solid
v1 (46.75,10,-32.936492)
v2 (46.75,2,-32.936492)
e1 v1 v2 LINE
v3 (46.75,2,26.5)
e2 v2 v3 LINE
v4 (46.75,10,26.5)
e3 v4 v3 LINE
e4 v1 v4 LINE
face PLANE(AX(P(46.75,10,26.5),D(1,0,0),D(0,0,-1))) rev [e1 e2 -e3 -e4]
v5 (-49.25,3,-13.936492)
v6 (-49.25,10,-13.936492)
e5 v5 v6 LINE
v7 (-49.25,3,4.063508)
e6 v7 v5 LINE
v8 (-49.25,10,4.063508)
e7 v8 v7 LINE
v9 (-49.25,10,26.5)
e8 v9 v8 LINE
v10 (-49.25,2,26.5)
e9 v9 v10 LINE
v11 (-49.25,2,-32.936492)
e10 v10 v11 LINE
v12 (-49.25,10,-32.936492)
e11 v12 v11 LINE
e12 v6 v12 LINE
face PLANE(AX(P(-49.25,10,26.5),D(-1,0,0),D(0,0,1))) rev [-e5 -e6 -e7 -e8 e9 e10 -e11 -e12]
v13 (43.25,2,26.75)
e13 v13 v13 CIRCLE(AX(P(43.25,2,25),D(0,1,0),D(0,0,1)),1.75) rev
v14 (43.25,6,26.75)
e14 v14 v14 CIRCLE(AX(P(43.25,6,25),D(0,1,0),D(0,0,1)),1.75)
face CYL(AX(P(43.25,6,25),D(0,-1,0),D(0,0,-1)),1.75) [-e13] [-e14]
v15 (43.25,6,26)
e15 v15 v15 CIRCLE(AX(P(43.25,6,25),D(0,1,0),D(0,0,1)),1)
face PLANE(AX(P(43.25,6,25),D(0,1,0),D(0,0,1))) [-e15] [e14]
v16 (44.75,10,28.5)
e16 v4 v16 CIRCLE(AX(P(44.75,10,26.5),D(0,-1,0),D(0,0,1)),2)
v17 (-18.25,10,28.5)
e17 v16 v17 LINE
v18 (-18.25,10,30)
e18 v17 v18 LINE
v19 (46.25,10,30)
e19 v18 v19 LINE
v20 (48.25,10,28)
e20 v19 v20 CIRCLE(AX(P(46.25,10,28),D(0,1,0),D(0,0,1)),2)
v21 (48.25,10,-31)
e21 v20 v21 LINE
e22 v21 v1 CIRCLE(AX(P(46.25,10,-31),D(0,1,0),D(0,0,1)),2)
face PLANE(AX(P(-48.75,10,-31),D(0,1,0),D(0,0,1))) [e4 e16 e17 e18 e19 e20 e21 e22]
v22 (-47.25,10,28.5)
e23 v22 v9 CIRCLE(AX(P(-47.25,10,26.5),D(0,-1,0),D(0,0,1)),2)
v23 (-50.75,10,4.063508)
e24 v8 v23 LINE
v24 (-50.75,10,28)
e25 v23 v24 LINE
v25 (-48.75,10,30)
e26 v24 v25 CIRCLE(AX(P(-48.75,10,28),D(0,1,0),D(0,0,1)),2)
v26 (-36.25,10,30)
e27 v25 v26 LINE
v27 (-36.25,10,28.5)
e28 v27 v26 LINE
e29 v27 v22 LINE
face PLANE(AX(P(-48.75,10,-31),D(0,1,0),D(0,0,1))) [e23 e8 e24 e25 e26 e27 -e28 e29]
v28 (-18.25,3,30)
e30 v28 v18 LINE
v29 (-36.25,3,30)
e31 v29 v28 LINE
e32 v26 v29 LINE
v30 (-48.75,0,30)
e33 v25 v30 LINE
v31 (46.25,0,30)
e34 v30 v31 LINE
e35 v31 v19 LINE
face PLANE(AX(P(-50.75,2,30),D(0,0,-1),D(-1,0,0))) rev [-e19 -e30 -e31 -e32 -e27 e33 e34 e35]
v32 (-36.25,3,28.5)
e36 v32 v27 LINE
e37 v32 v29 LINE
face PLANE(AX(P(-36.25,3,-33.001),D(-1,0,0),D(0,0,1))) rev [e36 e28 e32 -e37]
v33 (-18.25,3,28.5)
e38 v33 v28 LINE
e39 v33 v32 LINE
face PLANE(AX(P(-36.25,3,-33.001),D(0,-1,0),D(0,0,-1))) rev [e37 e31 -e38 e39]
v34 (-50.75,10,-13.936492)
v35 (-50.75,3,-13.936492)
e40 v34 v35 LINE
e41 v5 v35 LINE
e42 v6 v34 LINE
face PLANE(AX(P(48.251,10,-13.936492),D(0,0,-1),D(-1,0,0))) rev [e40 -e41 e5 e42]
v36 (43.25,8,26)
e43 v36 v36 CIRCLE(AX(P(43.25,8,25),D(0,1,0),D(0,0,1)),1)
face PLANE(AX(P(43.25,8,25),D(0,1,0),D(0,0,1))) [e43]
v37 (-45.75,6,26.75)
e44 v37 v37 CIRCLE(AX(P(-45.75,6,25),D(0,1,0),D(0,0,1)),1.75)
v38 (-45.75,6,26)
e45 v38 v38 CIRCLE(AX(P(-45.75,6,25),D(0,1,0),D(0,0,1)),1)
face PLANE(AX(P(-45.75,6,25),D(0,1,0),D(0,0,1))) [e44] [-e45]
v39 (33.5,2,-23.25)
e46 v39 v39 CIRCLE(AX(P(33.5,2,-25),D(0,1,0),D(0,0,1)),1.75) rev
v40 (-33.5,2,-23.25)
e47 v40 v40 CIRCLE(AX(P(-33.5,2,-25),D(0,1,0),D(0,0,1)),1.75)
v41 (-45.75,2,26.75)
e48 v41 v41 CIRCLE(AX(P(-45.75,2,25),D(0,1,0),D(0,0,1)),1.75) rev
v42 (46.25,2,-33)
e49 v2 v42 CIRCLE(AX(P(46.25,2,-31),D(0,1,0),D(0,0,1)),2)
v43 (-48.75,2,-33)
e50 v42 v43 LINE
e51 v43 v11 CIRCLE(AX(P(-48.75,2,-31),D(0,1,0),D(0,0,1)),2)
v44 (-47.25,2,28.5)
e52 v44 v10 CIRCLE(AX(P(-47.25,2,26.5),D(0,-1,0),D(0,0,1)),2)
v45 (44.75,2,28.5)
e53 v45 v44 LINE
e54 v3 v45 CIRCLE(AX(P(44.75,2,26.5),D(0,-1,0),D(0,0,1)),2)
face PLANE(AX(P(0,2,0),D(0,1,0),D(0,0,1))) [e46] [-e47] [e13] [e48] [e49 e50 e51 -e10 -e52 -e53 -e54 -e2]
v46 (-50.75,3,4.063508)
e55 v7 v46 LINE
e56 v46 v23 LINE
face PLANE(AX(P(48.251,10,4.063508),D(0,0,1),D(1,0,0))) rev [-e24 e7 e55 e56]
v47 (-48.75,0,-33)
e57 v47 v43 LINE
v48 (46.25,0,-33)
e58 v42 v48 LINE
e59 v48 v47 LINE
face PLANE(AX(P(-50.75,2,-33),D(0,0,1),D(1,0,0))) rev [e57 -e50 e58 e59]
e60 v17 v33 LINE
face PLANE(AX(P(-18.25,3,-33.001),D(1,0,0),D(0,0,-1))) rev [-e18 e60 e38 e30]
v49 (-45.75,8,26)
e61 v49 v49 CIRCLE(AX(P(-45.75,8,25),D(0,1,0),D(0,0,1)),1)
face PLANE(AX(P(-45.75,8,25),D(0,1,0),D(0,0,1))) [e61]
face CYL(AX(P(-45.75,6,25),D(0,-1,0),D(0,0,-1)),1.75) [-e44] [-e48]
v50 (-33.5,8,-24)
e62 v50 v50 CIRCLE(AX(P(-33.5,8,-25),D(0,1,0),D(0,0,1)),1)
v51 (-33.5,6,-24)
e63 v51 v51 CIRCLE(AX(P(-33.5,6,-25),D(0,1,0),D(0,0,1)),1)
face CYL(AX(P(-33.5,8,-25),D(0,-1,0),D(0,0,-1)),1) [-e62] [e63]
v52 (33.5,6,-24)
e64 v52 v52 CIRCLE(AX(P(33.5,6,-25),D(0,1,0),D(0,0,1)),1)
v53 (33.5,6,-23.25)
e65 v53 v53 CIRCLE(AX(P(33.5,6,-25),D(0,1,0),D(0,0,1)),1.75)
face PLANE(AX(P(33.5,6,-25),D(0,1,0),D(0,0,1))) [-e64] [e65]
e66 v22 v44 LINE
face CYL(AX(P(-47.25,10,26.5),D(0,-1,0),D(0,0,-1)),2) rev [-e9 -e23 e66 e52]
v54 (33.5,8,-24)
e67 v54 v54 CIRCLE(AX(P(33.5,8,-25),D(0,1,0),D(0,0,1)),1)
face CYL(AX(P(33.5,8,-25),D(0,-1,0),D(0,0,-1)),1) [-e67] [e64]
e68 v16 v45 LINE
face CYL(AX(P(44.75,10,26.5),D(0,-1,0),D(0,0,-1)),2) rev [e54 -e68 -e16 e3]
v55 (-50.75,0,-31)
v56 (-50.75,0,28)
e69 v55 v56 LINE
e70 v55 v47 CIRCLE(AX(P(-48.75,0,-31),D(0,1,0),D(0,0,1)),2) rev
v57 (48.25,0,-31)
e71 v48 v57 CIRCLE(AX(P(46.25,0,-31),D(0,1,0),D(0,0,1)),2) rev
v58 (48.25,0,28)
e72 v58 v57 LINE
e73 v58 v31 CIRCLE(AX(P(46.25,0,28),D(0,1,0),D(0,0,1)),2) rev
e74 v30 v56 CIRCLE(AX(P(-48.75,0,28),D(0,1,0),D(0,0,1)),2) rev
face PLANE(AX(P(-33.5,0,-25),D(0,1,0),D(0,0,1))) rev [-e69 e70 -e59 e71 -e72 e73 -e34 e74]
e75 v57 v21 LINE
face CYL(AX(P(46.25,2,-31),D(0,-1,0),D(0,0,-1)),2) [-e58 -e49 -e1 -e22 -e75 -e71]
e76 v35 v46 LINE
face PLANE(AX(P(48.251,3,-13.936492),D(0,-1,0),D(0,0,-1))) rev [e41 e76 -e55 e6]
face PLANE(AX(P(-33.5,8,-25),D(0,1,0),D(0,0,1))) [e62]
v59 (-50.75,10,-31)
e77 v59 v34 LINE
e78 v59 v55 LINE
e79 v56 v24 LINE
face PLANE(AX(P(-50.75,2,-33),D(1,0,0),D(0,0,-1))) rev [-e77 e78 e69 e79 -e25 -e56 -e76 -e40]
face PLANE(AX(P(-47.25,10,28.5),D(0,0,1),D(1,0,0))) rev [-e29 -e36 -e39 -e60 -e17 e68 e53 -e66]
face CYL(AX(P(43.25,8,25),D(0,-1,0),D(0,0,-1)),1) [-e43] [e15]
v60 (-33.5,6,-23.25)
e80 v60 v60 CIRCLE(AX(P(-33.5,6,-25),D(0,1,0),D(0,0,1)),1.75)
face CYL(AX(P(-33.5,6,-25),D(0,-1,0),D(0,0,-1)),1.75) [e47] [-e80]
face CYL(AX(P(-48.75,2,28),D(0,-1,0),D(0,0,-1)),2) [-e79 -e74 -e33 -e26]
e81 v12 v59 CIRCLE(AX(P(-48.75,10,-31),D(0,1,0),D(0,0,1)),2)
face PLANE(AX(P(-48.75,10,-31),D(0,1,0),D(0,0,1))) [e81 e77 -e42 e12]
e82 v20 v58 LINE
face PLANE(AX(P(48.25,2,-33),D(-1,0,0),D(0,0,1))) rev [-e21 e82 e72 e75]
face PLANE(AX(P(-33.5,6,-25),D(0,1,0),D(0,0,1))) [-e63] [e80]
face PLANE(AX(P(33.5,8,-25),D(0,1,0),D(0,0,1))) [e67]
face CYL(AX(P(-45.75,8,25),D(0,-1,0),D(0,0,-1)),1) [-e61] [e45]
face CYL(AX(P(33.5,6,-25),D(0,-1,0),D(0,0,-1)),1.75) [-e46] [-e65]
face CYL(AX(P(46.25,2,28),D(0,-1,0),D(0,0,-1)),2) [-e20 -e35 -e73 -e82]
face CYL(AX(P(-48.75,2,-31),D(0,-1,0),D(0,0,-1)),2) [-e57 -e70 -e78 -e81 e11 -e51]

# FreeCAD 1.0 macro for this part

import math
import FreeCAD as App
import Part
import Sketcher


def edges_at(feature, points):
    """Names of the edges that pass closest to the given points."""
    edges = feature.Shape.Edges
    near = lambda p: min(range(len(edges)), key=lambda i: edges[i].distToShape(Part.Vertex(*p))[0])
    return sorted({f"Edge{near(p) + 1}" for p in points})


def add_polygon(sketch, points):
    """Adds a closed chain of lines whose ends are joined by coincident constraints."""
    first, n = sketch.GeometryCount, len(points)
    for a, b in zip(points, points[1:] + points[:1]):
        sketch.addGeometry(Part.LineSegment(App.Vector(*a, 0), App.Vector(*b, 0)), False)
    for i in range(n):
        sketch.addConstraint(Sketcher.Constraint("Coincident", first + i, 2, first + (i + 1) % n, 1))

doc = App.newDocument("Part")
body = doc.addObject("PartDesign::Body", "Body")

# Sketch on XZ plane
sketch1 = doc.addObject("Sketcher::SketchObject", "Sketch")
body.addObject(sketch1)
sketch1.AttachmentSupport = (doc.XZ_Plane, [""])
sketch1.MapMode = "FlatFace"
sketch1.addGeometry(Part.Circle(App.Vector(-33.5, -25, 0), App.Vector(0, 0, 1), 1), False)
sketch1.addConstraint([
    Sketcher.Constraint("Diameter", 0, 2.0),
    Sketcher.Constraint("DistanceY", 0, 3, -1, 1, 25.0),
    Sketcher.Constraint("DistanceX", 0, 3, -1, 1, 33.5),
])
pad1 = doc.addObject("PartDesign::Pad", "Pad")
body.addObject(pad1)
pad1.Profile = sketch1
pad1.Length = 8
pad1.Reversed = True
body2 = doc.addObject("PartDesign::Body", "Body001")

# Sketch on XZ plane
sketch2 = doc.addObject("Sketcher::SketchObject", "Sketch001")
body2.addObject(sketch2)
sketch2.AttachmentSupport = (doc.getObject("XZ_Plane001"), [""])
sketch2.MapMode = "FlatFace"
sketch2.addGeometry(Part.Circle(App.Vector(33.5, -25, 0), App.Vector(0, 0, 1), 1), False)
sketch2.addConstraint([
    Sketcher.Constraint("Diameter", 0, 2.0),
    Sketcher.Constraint("DistanceY", 0, 3, -1, 1, 25.0),
    Sketcher.Constraint("DistanceX", -1, 1, 0, 3, 33.5),
])
pad2 = doc.addObject("PartDesign::Pad", "Pad001")
body2.addObject(pad2)
pad2.Profile = sketch2
pad2.Length = 8
pad2.Reversed = True
body3 = doc.addObject("PartDesign::Body", "Body002")

# Sketch on XZ plane
sketch3 = doc.addObject("Sketcher::SketchObject", "Sketch002")
body3.addObject(sketch3)
sketch3.AttachmentSupport = (doc.getObject("XZ_Plane002"), [""])
sketch3.MapMode = "FlatFace"
sketch3.addGeometry(Part.Circle(App.Vector(-45.8, 25, 0), App.Vector(0, 0, 1), 1), False)
sketch3.addConstraint([
    Sketcher.Constraint("Diameter", 0, 2.0),
    Sketcher.Constraint("DistanceY", -1, 1, 0, 3, 25.0),
    Sketcher.Constraint("DistanceX", 0, 3, -1, 1, 45.75),
])
pad3 = doc.addObject("PartDesign::Pad", "Pad002")
body3.addObject(pad3)
pad3.Profile = sketch3
pad3.Length = 8
pad3.Reversed = True
body4 = doc.addObject("PartDesign::Body", "Body003")

# Sketch on XZ plane
sketch4 = doc.addObject("Sketcher::SketchObject", "Sketch003")
body4.addObject(sketch4)
sketch4.AttachmentSupport = (doc.getObject("XZ_Plane003"), [""])
sketch4.MapMode = "FlatFace"
sketch4.addGeometry(Part.Circle(App.Vector(43.2, 25, 0), App.Vector(0, 0, 1), 1), False)
sketch4.addConstraint([
    Sketcher.Constraint("Diameter", 0, 2.0),
    Sketcher.Constraint("DistanceY", -1, 1, 0, 3, 25.0),
    Sketcher.Constraint("DistanceX", -1, 1, 0, 3, 43.25),
])
pad4 = doc.addObject("PartDesign::Pad", "Pad003")
body4.addObject(pad4)
pad4.Profile = sketch4
pad4.Length = 8
pad4.Reversed = True
body.AllowCompound = True
doc.recompute()

boolean = doc.addObject("PartDesign::Boolean", "Boolean")
body.addObject(boolean)
boolean.Type = "Fuse"
boolean.addObjects([body2])
doc.recompute()

boolean2 = doc.addObject("PartDesign::Boolean", "Boolean001")
body.addObject(boolean2)
boolean2.Type = "Fuse"
boolean2.addObjects([body3])
doc.recompute()

boolean3 = doc.addObject("PartDesign::Boolean", "Boolean002")
body.addObject(boolean3)
boolean3.Type = "Fuse"
boolean3.addObjects([body4])

# Sketch on XZ plane
sketch5 = doc.addObject("Sketcher::SketchObject", "Sketch004")
body.addObject(sketch5)
sketch5.AttachmentSupport = (doc.XZ_Plane, [""])
sketch5.MapMode = "FlatFace"
sketch5.addGeometry([
    Part.Circle(App.Vector(-33.5, -25, 0), App.Vector(0, 0, 1), 1.8),
    Part.Circle(App.Vector(33.5, -25, 0), App.Vector(0, 0, 1), 1.8),
    Part.Circle(App.Vector(43.2, 25, 0), App.Vector(0, 0, 1), 1.8),
    Part.Circle(App.Vector(-45.8, 25, 0), App.Vector(0, 0, 1), 1.8),
], False)
sketch5.addConstraint([
    Sketcher.Constraint("Equal", 0, 1),
    Sketcher.Constraint("Equal", 1, 2),
    Sketcher.Constraint("Equal", 2, 3),
    Sketcher.Constraint("Symmetric", 0, 3, 1, 3, -2),
    Sketcher.Constraint("Horizontal", 2, 3, 3, 3),
    Sketcher.Constraint("Diameter", 0, 3.5),
    Sketcher.Constraint("DistanceY", 0, 3, -1, 1, 25.0),
    Sketcher.Constraint("DistanceY", -1, 1, 2, 3, 25.0),
    Sketcher.Constraint("DistanceX", 0, 3, 1, 3, 67.0),
    Sketcher.Constraint("DistanceX", 3, 3, 2, 3, 89.0),
    Sketcher.Constraint("DistanceX", -1, 1, 2, 3, 43.25),
])
pad5 = doc.addObject("PartDesign::Pad", "Pad004")
body.addObject(pad5)
pad5.Profile = sketch5
pad5.Length = 6
pad5.Reversed = True

# Sketch on XZ plane
sketch6 = doc.addObject("Sketcher::SketchObject", "Sketch005")
body.addObject(sketch6)
sketch6.AttachmentSupport = (doc.XZ_Plane, [""])
sketch6.MapMode = "FlatFace"
add_polygon(sketch6, [(-51, -33), (-51, 30), (48, 30), (48, -33)])  # lines 0-3
sketch6.addConstraint([
    Sketcher.Constraint("Vertical", 0),
    Sketcher.Constraint("Horizontal", 1),
    Sketcher.Constraint("Vertical", 2),
    Sketcher.Constraint("Horizontal", 3),
    Sketcher.Constraint("DistanceX", 1, 1, 1, 2, 99.0),
    Sketcher.Constraint("DistanceY", 0, 1, 0, 2, 63.0),
    Sketcher.Constraint("DistanceY", -1, 1, 0, 2, 30.0),
    Sketcher.Constraint("DistanceX", 0, 2, -1, 1, 50.75),
])
pad6 = doc.addObject("PartDesign::Pad", "Pad005")
body.addObject(pad6)
pad6.Profile = sketch6
pad6.Length = 2
pad6.Reversed = True
doc.recompute()

fillet = doc.addObject("PartDesign::Fillet", "Fillet")
body.addObject(fillet)
fillet.Base = (pad6, edges_at(pad6, [
    (-50.75, 1, -33),
    (-50.75, 1, 30),
    (48.25, 1, 30),
    (48.25, 1, -33),
]))
fillet.Radius = 2

# Sketch on XZ plane
sketch7 = doc.addObject("Sketcher::SketchObject", "Sketch006")
body.addObject(sketch7)
sketch7.AttachmentSupport = (doc.XZ_Plane, [""])
sketch7.MapMode = "FlatFace"
sketch7.AttachmentOffset = App.Placement(App.Vector(0, 0, -10), App.Rotation())
sketch7.addGeometry([
    Part.LineSegment(App.Vector(44.8, 28.5, 0), App.Vector(-47.2, 28.5, 0)),  # 0
    Part.ArcOfCircle(Part.Circle(App.Vector(-47.2, 26.5, 0), App.Vector(0, 0, 1), 2), math.radians(90), math.radians(180)),  # 1
    Part.LineSegment(App.Vector(-49.2, 26.5, 0), App.Vector(-49.2, -32.9, 0)),  # 2
    Part.ArcOfCircle(Part.Circle(App.Vector(-48.7, -31, 0), App.Vector(0, 0, 1), 2), math.radians(-180), math.radians(-104)),  # 3
    Part.LineSegment(App.Vector(-50.8, -31, 0), App.Vector(-50.8, 28, 0)),  # 4
    Part.ArcOfCircle(Part.Circle(App.Vector(-48.7, 28, 0), App.Vector(0, 0, 1), 2), math.radians(90), math.radians(180)),  # 5
    Part.LineSegment(App.Vector(-48.8, 30, 0), App.Vector(46.2, 30, 0)),  # 6
    Part.ArcOfCircle(Part.Circle(App.Vector(46.2, 28, 0), App.Vector(0, 0, 1), 2), math.radians(0), math.radians(90)),  # 7
    Part.LineSegment(App.Vector(48.2, 28, 0), App.Vector(48.2, -31, 0)),  # 8
    Part.ArcOfCircle(Part.Circle(App.Vector(46.2, -31, 0), App.Vector(0, 0, 1), 2), math.radians(-76), math.radians(0)),  # 9
    Part.LineSegment(App.Vector(46.8, -32.9, 0), App.Vector(46.8, 26.5, 0)),  # 10
    Part.ArcOfCircle(Part.Circle(App.Vector(44.7, 26.5, 0), App.Vector(0, 0, 1), 2), math.radians(0), math.radians(90)),  # 11
], False)
sketch7.addConstraint([
    Sketcher.Constraint("Tangent", 0, 2, 1, 1),
    Sketcher.Constraint("Tangent", 1, 2, 2, 1),
    Sketcher.Constraint("Coincident", 2, 2, 3, 2),
    Sketcher.Constraint("Tangent", 3, 1, 4, 1),
    Sketcher.Constraint("Tangent", 4, 2, 5, 2),
    Sketcher.Constraint("Tangent", 5, 1, 6, 1),
    Sketcher.Constraint("Tangent", 6, 2, 7, 2),
    Sketcher.Constraint("Tangent", 7, 1, 8, 1),
    Sketcher.Constraint("Tangent", 8, 2, 9, 2),
    Sketcher.Constraint("Coincident", 9, 1, 10, 1),
    Sketcher.Constraint("Tangent", 10, 2, 11, 1),
    Sketcher.Constraint("Tangent", 11, 2, 0, 1),
    Sketcher.Constraint("Horizontal", 0),
    Sketcher.Constraint("Vertical", 2),
    Sketcher.Constraint("Vertical", 4),
    Sketcher.Constraint("Horizontal", 6),
    Sketcher.Constraint("Vertical", 8),
    Sketcher.Constraint("Vertical", 10),
    Sketcher.Constraint("Equal", 1, 3),
    Sketcher.Constraint("Equal", 3, 5),
    Sketcher.Constraint("Equal", 5, 7),
    Sketcher.Constraint("Equal", 7, 9),
    Sketcher.Constraint("Equal", 9, 11),
    Sketcher.Constraint("Horizontal", 3, 3, 9, 3),
    Sketcher.Constraint("Horizontal", 2, 2, 9, 1),
    Sketcher.Constraint("Radius", 1, 2.0),
    Sketcher.Constraint("DistanceX", 0, 2, 0, 1, 92.0),
    Sketcher.Constraint("DistanceX", 6, 1, 6, 2, 95.0),
    Sketcher.Constraint("DistanceY", 4, 1, 4, 2, 59.0),
    Sketcher.Constraint("DistanceY", 3, 3, -1, 1, 31.0),
    Sketcher.Constraint("DistanceY", -1, 1, 1, 3, 26.5),
    Sketcher.Constraint("DistanceX", 1, 3, -1, 1, 47.25),
])
pad7 = doc.addObject("PartDesign::Pad", "Pad006")
body.addObject(pad7)
pad7.Profile = sketch7
pad7.Length = 8

# Sketch on YZ plane
sketch8 = doc.addObject("Sketcher::SketchObject", "Sketch007")
body.addObject(sketch8)
sketch8.AttachmentSupport = (doc.YZ_Plane, [""])
sketch8.MapMode = "FlatFace"
sketch8.AttachmentOffset = App.Placement(App.Vector(0, 0, -50.75), App.Rotation())
add_polygon(sketch8, [(10, -14), (3, -14), (3, 4), (10, 4)])  # lines 0-3
sketch8.addConstraint([
    Sketcher.Constraint("Horizontal", 0),
    Sketcher.Constraint("Vertical", 1),
    Sketcher.Constraint("Horizontal", 2),
    Sketcher.Constraint("Vertical", 3),
    Sketcher.Constraint("DistanceX", 0, 2, 0, 1, 7.0),
    Sketcher.Constraint("DistanceY", 1, 1, 1, 2, 18.0),
    Sketcher.Constraint("DistanceX", -1, 1, 0, 2, 3.0),
    Sketcher.Constraint("DistanceY", 0, 2, -1, 1, 13.936492),
])
pocket1 = doc.addObject("PartDesign::Pocket", "Pocket")
body.addObject(pocket1)
pocket1.Profile = sketch8
pocket1.Type = "UpToFirst"
pocket1.Reversed = True

# Sketch on XY plane
sketch9 = doc.addObject("Sketcher::SketchObject", "Sketch008")
body.addObject(sketch9)
sketch9.AttachmentSupport = (doc.XY_Plane, [""])
sketch9.MapMode = "FlatFace"
sketch9.AttachmentOffset = App.Placement(App.Vector(0, 0, 30), App.Rotation())
add_polygon(sketch9, [(-36, 10), (-36, 3), (-18, 3), (-18, 10)])  # lines 0-3
sketch9.addConstraint([
    Sketcher.Constraint("Vertical", 0),
    Sketcher.Constraint("Horizontal", 1),
    Sketcher.Constraint("Vertical", 2),
    Sketcher.Constraint("Horizontal", 3),
    Sketcher.Constraint("DistanceX", 1, 1, 1, 2, 18.0),
    Sketcher.Constraint("DistanceY", 0, 2, 0, 1, 7.0),
    Sketcher.Constraint("DistanceY", -1, 1, 0, 2, 3.0),
    Sketcher.Constraint("DistanceX", 0, 2, -1, 1, 36.25),
])
pocket2 = doc.addObject("PartDesign::Pocket", "Pocket001")
body.addObject(pocket2)
pocket2.Profile = sketch9
pocket2.Type = "UpToFirst"

doc.recompute()
